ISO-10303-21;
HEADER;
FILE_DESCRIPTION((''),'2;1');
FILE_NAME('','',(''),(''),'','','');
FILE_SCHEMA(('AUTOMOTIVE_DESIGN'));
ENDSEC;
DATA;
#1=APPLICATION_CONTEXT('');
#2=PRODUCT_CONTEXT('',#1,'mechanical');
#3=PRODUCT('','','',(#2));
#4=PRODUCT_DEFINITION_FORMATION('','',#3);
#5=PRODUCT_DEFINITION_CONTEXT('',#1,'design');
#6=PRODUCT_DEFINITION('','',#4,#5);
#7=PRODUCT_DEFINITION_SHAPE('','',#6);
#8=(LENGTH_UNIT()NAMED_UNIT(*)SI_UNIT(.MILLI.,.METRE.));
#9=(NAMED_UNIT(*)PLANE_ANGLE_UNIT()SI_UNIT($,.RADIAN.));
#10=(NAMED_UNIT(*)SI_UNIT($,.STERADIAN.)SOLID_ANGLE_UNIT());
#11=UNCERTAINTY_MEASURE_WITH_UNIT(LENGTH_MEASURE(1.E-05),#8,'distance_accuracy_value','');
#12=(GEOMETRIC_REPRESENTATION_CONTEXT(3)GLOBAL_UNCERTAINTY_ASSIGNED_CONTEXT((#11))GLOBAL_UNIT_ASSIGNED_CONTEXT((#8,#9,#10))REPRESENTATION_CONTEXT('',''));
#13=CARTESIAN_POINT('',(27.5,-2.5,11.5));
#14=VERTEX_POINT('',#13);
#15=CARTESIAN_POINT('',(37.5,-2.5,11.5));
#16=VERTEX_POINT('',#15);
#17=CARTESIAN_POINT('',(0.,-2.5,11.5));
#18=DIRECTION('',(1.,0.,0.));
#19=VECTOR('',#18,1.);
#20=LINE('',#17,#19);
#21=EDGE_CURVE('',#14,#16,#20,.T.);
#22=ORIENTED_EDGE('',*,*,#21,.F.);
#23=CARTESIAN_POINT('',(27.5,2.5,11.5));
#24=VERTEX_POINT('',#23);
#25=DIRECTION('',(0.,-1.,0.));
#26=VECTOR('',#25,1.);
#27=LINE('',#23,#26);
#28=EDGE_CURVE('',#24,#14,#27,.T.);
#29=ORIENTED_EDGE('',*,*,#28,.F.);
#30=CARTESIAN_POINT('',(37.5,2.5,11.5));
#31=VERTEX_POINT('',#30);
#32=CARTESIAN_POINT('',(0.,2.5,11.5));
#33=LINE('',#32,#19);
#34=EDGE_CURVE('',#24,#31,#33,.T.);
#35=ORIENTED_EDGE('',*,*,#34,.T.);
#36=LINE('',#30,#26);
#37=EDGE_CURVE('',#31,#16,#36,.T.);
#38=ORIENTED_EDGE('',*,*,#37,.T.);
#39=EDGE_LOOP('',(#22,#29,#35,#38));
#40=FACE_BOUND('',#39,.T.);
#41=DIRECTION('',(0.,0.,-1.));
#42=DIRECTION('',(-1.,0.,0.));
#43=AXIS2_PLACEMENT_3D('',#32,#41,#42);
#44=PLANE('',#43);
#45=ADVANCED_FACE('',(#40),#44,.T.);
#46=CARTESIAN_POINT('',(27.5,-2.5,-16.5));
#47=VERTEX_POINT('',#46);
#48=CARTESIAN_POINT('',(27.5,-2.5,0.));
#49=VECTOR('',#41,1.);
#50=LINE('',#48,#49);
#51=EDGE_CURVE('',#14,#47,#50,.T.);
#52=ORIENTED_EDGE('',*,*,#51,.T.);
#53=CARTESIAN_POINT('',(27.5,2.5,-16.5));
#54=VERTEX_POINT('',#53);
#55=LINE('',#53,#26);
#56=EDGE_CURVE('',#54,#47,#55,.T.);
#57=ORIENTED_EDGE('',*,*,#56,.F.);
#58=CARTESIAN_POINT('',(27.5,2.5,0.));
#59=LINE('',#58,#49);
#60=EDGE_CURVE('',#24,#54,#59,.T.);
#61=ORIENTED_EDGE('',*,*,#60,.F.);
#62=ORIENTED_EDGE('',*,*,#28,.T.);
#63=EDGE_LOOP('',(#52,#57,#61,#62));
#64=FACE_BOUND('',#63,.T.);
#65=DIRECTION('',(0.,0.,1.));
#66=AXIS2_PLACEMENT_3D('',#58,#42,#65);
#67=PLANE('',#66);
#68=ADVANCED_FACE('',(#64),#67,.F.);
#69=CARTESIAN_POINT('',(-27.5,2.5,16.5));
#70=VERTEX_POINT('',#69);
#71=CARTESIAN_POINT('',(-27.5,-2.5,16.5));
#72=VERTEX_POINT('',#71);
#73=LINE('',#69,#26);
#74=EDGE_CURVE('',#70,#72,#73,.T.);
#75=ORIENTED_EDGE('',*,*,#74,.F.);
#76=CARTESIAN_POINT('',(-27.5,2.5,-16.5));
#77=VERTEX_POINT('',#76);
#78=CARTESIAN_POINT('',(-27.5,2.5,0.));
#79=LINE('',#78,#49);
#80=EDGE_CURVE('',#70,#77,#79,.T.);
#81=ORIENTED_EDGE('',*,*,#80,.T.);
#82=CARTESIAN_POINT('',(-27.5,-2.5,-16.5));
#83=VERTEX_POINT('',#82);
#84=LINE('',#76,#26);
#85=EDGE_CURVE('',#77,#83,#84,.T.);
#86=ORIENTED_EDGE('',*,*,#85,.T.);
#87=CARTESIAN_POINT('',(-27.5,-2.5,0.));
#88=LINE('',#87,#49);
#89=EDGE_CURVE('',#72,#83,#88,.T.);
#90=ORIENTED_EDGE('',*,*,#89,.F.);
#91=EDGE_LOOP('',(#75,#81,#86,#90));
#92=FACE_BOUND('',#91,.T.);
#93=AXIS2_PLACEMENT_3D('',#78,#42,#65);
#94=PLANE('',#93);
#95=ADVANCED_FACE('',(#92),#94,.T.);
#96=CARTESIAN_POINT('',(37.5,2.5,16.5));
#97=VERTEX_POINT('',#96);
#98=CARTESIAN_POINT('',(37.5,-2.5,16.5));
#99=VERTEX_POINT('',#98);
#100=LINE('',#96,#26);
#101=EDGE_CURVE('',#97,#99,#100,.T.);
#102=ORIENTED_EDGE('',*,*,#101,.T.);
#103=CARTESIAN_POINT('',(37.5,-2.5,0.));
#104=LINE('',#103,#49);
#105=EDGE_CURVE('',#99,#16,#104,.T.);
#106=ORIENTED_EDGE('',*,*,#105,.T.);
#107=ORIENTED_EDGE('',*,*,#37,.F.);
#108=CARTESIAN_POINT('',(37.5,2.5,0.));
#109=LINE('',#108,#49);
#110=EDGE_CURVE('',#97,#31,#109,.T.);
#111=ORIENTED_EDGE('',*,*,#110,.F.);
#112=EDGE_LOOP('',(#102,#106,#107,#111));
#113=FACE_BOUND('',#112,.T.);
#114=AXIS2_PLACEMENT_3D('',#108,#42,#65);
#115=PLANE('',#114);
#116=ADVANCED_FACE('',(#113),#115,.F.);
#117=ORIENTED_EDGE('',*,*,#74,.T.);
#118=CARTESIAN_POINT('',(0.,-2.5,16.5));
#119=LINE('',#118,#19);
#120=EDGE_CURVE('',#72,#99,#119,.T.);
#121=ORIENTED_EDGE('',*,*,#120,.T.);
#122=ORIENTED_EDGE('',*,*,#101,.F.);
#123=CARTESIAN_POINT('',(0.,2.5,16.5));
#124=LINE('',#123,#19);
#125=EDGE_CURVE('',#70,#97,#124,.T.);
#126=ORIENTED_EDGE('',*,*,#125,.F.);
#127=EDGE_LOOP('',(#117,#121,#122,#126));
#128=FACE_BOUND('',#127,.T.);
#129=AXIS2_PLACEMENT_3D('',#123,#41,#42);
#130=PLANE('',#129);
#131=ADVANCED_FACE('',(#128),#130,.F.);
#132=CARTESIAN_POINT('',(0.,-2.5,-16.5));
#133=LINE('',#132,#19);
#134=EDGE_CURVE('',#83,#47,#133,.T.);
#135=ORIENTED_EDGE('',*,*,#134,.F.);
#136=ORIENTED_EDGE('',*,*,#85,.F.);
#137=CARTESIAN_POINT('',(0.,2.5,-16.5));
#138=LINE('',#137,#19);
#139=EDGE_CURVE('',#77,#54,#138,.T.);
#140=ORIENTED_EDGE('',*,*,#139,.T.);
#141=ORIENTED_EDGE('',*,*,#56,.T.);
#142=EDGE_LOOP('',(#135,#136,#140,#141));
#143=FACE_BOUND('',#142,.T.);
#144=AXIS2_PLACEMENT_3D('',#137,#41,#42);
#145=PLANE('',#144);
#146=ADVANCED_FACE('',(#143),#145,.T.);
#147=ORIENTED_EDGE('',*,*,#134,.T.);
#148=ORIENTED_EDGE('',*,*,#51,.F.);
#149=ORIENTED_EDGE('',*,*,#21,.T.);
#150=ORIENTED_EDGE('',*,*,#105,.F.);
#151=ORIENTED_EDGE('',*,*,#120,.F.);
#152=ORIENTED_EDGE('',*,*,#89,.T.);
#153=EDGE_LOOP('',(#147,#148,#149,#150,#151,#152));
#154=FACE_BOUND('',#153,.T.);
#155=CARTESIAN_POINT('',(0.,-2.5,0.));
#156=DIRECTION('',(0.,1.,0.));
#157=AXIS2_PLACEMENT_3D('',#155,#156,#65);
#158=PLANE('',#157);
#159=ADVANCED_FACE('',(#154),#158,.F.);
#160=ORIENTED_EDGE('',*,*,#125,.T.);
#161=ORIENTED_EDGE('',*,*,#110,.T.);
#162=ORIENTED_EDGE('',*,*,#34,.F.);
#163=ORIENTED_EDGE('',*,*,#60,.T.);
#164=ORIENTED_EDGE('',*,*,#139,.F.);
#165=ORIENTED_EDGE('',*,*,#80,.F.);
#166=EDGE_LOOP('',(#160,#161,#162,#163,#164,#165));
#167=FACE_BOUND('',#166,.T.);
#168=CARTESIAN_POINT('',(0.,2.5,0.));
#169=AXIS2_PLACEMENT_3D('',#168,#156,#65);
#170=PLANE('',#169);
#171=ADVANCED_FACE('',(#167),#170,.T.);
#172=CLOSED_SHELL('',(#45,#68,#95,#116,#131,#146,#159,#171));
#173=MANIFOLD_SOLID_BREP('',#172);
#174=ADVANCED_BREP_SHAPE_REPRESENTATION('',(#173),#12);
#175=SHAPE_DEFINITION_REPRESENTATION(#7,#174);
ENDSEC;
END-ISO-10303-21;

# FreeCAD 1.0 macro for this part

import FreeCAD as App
import Part
import Sketcher

V = App.Vector


def add_polygon(sketch, points):
    """Adds a closed chain of lines whose ends are joined by coincident constraints."""
    first, n = sketch.GeometryCount, len(points)
    for a, b in zip(points, points[1:] + points[:1]):
        sketch.addGeometry(Part.LineSegment(App.Vector(*a, 0), App.Vector(*b, 0)), False)
    for i in range(n):
        sketch.addConstraint(Sketcher.Constraint("Coincident", first + i, 2, first + (i + 1) % n, 1))

doc = App.newDocument("Part")
body = doc.addObject("PartDesign::Body", "Body")

sketch1 = body.newObject("Sketcher::SketchObject", "Sketch")
sketch1.AttachmentSupport = (doc.getObject("XZ_Plane"), [""])
sketch1.MapMode = "FlatFace"
add_polygon(sketch1, [(-28, -16), (-28, 16), (38, 16), (38, 12), (28, 12), (28, -16)])
sketch1.addConstraint([
    Sketcher.Constraint("Vertical", 0),
    Sketcher.Constraint("Horizontal", 1),
    Sketcher.Constraint("Vertical", 2),
    Sketcher.Constraint("Horizontal", 3),
    Sketcher.Constraint("Vertical", 4),
    Sketcher.Constraint("Horizontal", 5),
    Sketcher.Constraint("Symmetric", 0, 2, 4, 2, -1, 1),
    Sketcher.Constraint("DistanceX", 1, 1, 1, 2, 65.0),
    Sketcher.Constraint("DistanceX", 3, 2, 3, 1, 10.0),
    Sketcher.Constraint("DistanceY", 0, 1, 0, 2, 33.0),
    Sketcher.Constraint("DistanceY", 2, 2, 2, 1, 5.0),
])
pad1 = body.newObject("PartDesign::Pad", "Pad")
pad1.Profile = sketch1
pad1.Length = 5
pad1.Midplane = True

doc.recompute()
